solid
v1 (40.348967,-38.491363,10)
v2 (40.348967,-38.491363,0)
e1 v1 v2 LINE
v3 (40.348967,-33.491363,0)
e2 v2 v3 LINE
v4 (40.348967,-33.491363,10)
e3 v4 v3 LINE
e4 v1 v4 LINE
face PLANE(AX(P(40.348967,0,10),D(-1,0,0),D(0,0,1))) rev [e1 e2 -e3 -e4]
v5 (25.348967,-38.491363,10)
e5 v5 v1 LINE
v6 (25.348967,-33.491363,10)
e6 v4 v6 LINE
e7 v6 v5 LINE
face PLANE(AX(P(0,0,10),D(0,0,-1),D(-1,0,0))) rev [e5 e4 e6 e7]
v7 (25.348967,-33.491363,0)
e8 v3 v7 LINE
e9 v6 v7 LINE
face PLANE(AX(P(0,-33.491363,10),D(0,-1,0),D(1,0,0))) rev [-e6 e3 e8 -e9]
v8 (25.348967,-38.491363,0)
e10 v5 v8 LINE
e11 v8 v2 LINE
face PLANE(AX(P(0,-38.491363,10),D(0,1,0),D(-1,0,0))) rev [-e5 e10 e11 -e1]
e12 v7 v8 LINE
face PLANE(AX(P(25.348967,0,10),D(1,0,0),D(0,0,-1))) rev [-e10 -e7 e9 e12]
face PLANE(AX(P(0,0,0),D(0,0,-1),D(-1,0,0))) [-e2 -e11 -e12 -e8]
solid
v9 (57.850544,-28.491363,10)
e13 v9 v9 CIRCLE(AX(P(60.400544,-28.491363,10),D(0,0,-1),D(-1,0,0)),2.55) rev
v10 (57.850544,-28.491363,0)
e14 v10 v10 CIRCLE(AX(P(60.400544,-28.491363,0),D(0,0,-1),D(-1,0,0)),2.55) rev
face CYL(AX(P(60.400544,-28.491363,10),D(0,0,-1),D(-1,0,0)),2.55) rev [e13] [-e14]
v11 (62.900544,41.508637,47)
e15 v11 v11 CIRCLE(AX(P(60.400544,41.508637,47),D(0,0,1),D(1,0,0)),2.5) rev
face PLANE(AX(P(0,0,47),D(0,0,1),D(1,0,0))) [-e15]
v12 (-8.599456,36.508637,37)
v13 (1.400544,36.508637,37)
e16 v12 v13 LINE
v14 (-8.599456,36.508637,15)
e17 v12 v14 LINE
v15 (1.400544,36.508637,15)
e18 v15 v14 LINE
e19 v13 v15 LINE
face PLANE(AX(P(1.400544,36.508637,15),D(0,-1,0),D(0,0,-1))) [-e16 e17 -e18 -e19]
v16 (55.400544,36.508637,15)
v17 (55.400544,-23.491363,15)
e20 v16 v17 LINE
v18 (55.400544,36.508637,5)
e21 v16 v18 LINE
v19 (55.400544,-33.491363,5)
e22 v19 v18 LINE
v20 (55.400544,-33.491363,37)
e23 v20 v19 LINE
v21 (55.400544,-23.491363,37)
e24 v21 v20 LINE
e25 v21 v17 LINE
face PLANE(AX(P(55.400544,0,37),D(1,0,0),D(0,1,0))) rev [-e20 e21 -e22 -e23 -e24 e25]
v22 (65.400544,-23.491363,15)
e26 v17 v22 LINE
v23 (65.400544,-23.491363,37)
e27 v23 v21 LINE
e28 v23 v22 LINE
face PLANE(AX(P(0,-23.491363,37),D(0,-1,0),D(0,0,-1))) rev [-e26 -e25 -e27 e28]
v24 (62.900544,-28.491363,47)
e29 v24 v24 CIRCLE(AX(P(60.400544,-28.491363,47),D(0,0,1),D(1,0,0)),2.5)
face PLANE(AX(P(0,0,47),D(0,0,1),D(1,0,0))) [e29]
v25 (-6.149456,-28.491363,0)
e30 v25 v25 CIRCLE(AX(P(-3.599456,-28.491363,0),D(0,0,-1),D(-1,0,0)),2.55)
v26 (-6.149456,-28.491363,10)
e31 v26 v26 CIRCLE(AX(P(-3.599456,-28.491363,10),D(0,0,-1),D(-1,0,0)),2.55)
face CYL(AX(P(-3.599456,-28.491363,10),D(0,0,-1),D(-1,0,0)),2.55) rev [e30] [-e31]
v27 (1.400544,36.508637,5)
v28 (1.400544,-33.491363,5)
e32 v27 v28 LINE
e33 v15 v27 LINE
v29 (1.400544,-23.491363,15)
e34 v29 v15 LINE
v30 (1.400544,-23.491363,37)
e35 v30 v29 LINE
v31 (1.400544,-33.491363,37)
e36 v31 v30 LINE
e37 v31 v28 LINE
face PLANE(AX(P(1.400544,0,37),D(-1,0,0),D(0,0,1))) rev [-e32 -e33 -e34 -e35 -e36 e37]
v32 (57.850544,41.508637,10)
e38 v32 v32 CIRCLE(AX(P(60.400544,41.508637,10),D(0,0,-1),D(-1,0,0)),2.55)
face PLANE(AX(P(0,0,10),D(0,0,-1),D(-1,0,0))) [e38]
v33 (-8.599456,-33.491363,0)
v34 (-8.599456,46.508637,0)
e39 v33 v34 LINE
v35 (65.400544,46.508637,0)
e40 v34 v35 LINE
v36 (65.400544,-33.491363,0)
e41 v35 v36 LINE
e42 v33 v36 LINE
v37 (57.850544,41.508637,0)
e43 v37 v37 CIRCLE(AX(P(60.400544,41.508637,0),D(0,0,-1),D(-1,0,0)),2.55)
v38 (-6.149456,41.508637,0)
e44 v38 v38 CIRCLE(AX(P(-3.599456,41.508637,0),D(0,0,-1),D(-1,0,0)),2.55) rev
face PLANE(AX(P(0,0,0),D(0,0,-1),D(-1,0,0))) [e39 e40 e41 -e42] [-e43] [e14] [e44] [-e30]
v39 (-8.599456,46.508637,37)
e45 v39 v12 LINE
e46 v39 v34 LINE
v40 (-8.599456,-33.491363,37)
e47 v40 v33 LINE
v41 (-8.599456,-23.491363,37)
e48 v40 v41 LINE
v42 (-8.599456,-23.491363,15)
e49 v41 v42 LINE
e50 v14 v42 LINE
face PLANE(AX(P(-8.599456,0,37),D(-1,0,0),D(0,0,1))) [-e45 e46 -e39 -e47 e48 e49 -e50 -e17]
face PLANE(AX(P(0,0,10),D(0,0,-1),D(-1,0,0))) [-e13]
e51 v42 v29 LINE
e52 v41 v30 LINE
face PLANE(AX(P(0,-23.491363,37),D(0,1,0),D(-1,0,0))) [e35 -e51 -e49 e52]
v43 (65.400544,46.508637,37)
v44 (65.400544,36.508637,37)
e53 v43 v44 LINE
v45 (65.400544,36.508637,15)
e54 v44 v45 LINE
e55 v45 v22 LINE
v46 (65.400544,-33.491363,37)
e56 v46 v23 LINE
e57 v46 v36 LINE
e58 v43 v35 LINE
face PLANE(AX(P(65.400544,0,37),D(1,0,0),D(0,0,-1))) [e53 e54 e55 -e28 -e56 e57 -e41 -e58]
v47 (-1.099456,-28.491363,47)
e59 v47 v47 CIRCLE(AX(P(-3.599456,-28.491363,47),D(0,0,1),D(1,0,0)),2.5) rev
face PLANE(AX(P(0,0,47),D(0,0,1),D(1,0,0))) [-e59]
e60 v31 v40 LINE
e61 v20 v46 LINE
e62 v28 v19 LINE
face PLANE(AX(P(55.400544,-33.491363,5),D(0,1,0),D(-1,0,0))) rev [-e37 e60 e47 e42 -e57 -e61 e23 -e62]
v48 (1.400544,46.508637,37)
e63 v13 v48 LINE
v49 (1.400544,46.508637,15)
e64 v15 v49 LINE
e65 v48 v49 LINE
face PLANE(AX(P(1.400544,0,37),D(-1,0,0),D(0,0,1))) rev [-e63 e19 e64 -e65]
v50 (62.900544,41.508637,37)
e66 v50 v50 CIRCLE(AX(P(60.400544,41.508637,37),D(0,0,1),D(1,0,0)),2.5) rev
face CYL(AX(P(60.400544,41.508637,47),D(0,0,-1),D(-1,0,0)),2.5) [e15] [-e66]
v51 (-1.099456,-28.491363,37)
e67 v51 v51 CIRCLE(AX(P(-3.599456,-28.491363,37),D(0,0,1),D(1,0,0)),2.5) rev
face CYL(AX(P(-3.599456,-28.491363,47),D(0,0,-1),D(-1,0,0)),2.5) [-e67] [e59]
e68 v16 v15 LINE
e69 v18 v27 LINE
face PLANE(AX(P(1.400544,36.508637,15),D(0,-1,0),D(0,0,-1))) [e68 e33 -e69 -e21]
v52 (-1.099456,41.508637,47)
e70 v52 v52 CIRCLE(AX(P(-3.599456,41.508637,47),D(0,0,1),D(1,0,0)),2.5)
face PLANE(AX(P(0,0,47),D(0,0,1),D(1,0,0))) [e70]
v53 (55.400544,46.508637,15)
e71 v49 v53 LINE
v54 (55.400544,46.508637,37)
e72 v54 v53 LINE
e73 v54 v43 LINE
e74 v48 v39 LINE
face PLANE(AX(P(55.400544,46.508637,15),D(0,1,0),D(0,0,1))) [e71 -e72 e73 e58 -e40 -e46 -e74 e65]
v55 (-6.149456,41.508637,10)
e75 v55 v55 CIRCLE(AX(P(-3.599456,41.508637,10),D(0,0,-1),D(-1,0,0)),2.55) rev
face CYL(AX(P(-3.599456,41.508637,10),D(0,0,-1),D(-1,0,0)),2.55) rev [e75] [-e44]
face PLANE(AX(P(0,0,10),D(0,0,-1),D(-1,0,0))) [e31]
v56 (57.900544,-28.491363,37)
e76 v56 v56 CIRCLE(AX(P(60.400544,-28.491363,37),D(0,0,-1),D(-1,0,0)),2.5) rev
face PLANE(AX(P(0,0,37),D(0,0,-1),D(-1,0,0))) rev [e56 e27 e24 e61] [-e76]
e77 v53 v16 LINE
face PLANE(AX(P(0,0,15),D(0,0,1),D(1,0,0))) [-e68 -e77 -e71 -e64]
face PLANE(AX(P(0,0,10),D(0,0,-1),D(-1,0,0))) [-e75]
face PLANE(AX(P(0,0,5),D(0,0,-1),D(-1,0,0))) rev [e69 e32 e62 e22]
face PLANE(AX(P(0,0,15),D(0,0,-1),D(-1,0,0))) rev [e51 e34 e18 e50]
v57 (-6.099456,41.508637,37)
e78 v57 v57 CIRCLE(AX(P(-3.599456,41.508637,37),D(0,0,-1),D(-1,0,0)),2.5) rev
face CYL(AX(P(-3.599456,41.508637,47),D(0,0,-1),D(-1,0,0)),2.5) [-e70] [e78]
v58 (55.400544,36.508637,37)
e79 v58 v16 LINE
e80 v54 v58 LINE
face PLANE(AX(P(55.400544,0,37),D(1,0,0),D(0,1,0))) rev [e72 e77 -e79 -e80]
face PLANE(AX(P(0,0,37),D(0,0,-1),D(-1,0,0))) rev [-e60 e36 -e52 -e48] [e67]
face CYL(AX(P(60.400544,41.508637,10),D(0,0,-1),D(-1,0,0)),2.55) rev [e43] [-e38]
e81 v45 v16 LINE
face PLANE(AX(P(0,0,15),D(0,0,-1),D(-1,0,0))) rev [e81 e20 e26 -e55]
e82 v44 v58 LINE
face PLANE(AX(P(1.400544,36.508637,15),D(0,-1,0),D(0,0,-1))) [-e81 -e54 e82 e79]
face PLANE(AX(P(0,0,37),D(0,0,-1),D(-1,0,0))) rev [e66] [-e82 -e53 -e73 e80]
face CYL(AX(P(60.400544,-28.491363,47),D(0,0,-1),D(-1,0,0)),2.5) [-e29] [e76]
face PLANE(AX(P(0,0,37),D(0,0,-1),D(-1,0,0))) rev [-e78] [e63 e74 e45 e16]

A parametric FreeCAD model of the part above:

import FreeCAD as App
import Part
import Sketcher

V = App.Vector
Q = App.Units.Quantity


def add_polygon(sketch, points):
    """Adds a closed chain of lines whose ends are joined by coincident constraints."""
    first, n = sketch.GeometryCount, len(points)
    for a, b in zip(points, points[1:] + points[:1]):
        sketch.addGeometry(Part.LineSegment(App.Vector(*a, 0), App.Vector(*b, 0)), False)
    for i in range(n):
        sketch.addConstraint(Sketcher.Constraint("Coincident", first + i, 2, first + (i + 1) % n, 1))

doc = App.newDocument("Part")
body = doc.addObject("PartDesign::Body", "Body")

sketch1 = body.newObject("Sketcher::SketchObject", "Sketch")
sketch1.AttachmentSupport = (doc.getObject("XY_Plane"), [""])
sketch1.MapMode = "FlatFace"
add_polygon(sketch1, [(1.400544, 36.508637), (1.400544, -33.491363), (55.400544, -33.491363), (55.400544, 36.508637)])
sketch1.addConstraint([
    Sketcher.Constraint("Vertical", 0),
    Sketcher.Constraint("Horizontal", 1),
    Sketcher.Constraint("Vertical", 2),
    Sketcher.Constraint("Horizontal", 3),
    Sketcher.Constraint("DistanceX", 1, 1, 1, 2, Q("54 mm")),
    Sketcher.Constraint("DistanceY", 0, 2, 0, 1, Q("70 mm")),
    Sketcher.Constraint("DistanceX", -1, 1, 0, 2, Q("1.400544 mm")),
    Sketcher.Constraint("DistanceY", 0, 2, -1, 1, Q("33.491363 mm")),
])
pad1 = body.newObject("PartDesign::Pad", "Pad")
pad1.Profile = sketch1
pad1.Length = 5

sketch2 = body.newObject("Sketcher::SketchObject", "Sketch001")
sketch2.AttachmentSupport = (doc.getObject("XY_Plane"), [""])
sketch2.MapMode = "FlatFace"
add_polygon(sketch2, [(55.400544, 46.508637), (55.400544, 36.508637), (1.400544, 36.508637), (1.400544, 46.508637)])
sketch2.addConstraint([
    Sketcher.Constraint("Vertical", 0),
    Sketcher.Constraint("Horizontal", 1),
    Sketcher.Constraint("Vertical", 2),
    Sketcher.Constraint("Horizontal", 3),
    Sketcher.Constraint("DistanceX", 1, 2, 1, 1, Q("54 mm")),
    Sketcher.Constraint("DistanceY", 0, 2, 0, 1, Q("10 mm")),
    Sketcher.Constraint("DistanceX", -1, 1, 0, 2, Q("55.400544 mm")),
    Sketcher.Constraint("DistanceY", -1, 1, 0, 2, Q("36.508637 mm")),
])
pad2 = body.newObject("PartDesign::Pad", "Pad001")
pad2.Profile = sketch2
pad2.Length = 15

sketch3 = body.newObject("Sketcher::SketchObject", "Sketch002")
sketch3.AttachmentSupport = (doc.getObject("XY_Plane"), [""])
sketch3.MapMode = "FlatFace"
add_polygon(sketch3, [(65.400544, 46.508637), (65.400544, 36.508637), (55.400544, 36.508637), (55.400544, 46.508637)])
add_polygon(sketch3, [(65.400544, -23.491363), (65.400544, -33.491363), (55.400544, -33.491363), (55.400544, -23.491363)])
add_polygon(sketch3, [(1.400544, -23.491363), (1.400544, -33.491363), (-8.599456, -33.491363), (-8.599456, -23.491363)])
add_polygon(sketch3, [(1.400544, 46.508637), (1.400544, 36.508637), (-8.599456, 36.508637), (-8.599456, 46.508637)])
sketch3.addConstraint([
    Sketcher.Constraint("Vertical", 0),
    Sketcher.Constraint("Horizontal", 1),
    Sketcher.Constraint("Vertical", 2),
    Sketcher.Constraint("Horizontal", 3),
    Sketcher.Constraint("Vertical", 4),
    Sketcher.Constraint("Horizontal", 5),
    Sketcher.Constraint("Vertical", 6),
    Sketcher.Constraint("Horizontal", 7),
    Sketcher.Constraint("Vertical", 8),
    Sketcher.Constraint("Horizontal", 9),
    Sketcher.Constraint("Vertical", 10),
    Sketcher.Constraint("Horizontal", 11),
    Sketcher.Constraint("Vertical", 12),
    Sketcher.Constraint("Horizontal", 13),
    Sketcher.Constraint("Vertical", 14),
    Sketcher.Constraint("Horizontal", 15),
    Sketcher.Constraint("Horizontal", 5, 2, 8, 2),
    Sketcher.Constraint("Horizontal", 7, 2, 10, 2),
    Sketcher.Constraint("Horizontal", 1, 2, 12, 2),
    Sketcher.Constraint("Horizontal", 3, 2, 14, 2),
    Sketcher.Constraint("Vertical", 3, 2, 4, 2),
    Sketcher.Constraint("Vertical", 2, 2, 5, 2),
    Sketcher.Constraint("Vertical", 11, 2, 12, 2),
    Sketcher.Constraint("Vertical", 10, 2, 13, 2),
    Sketcher.Constraint("Equal", 7, 9),
    Sketcher.Constraint("Equal", 15, 0),
    Sketcher.Constraint("Equal", 2, 4),
    Sketcher.Constraint("DistanceX", 1, 2, 1, 1, Q("10 mm")),
    Sketcher.Constraint("DistanceY", 4, 2, 0, 2, Q("70 mm")),
    Sketcher.Constraint("DistanceX", 8, 2, 5, 2, Q("54 mm")),
    Sketcher.Constraint("DistanceX", -1, 1, 0, 2, Q("65.400544 mm")),
    Sketcher.Constraint("DistanceY", -1, 1, 0, 2, Q("36.508637 mm")),
])
pad3 = body.newObject("PartDesign::Pad", "Pad002")
pad3.Profile = sketch3
pad3.Length = 37

sketch4 = body.newObject("Sketcher::SketchObject", "Sketch003")
sketch4.AttachmentSupport = (doc.getObject("XY_Plane"), [""])
sketch4.MapMode = "FlatFace"
add_polygon(sketch4, [(65.400544, 36.508637), (65.400544, -23.491363), (55.400544, -23.491363), (55.400544, 36.508637)])
add_polygon(sketch4, [(1.400544, 36.508637), (1.400544, -23.491363), (-8.599456, -23.491363), (-8.599456, 36.508637)])
sketch4.addConstraint([
    Sketcher.Constraint("Vertical", 0),
    Sketcher.Constraint("Horizontal", 1),
    Sketcher.Constraint("Vertical", 2),
    Sketcher.Constraint("Horizontal", 3),
    Sketcher.Constraint("Vertical", 4),
    Sketcher.Constraint("Horizontal", 5),
    Sketcher.Constraint("Vertical", 6),
    Sketcher.Constraint("Horizontal", 7),
    Sketcher.Constraint("Horizontal", 1, 2, 4, 2),
    Sketcher.Constraint("Horizontal", 3, 2, 6, 2),
    Sketcher.Constraint("Equal", 3, 5),
    Sketcher.Constraint("DistanceX", 1, 2, 1, 1, Q("10 mm")),
    Sketcher.Constraint("DistanceY", 0, 2, 0, 1, Q("60 mm")),
    Sketcher.Constraint("DistanceX", 4, 2, 1, 2, Q("54 mm")),
    Sketcher.Constraint("DistanceX", -1, 1, 0, 2, Q("65.400544 mm")),
    Sketcher.Constraint("DistanceY", 0, 2, -1, 1, Q("23.491363 mm")),
])
pad4 = body.newObject("PartDesign::Pad", "Pad003")
pad4.Profile = sketch4
pad4.Length = 15

sketch5 = body.newObject("Sketcher::SketchObject", "Sketch004")
sketch5.AttachmentSupport = (doc.getObject("XY_Plane"), [""])
sketch5.MapMode = "FlatFace"
sketch5.AttachmentOffset = App.Placement(V(0, 0, 37), App.Rotation())
sketch5.addGeometry([
    Part.Circle(V(-3.599456, 41.508637, 0), V(0, 0, 1), 2.5),
    Part.Circle(V(60.400544, 41.508637, 0), V(0, 0, 1), 2.5),
    Part.Circle(V(60.400544, -28.491363, 0), V(0, 0, 1), 2.5),
    Part.Circle(V(-3.599456, -28.491363, 0), V(0, 0, 1), 2.5),
], False)
sketch5.addConstraint([
    Sketcher.Constraint("Equal", 0, 1),
    Sketcher.Constraint("Equal", 1, 2),
    Sketcher.Constraint("Equal", 2, 3),
    Sketcher.Constraint("Horizontal", 0, 3, 1, 3),
    Sketcher.Constraint("Horizontal", 2, 3, 3, 3),
    Sketcher.Constraint("Vertical", 1, 3, 2, 3),
    Sketcher.Constraint("Vertical", 0, 3, 3, 3),
    Sketcher.Constraint("Diameter", 0, Q("5 mm")),
    Sketcher.Constraint("DistanceX", 0, 3, 1, 3, Q("64 mm")),
    Sketcher.Constraint("DistanceY", 2, 3, 1, 3, Q("70 mm")),
    Sketcher.Constraint("DistanceX", 0, 3, -1, 1, Q("3.599456 mm")),
    Sketcher.Constraint("DistanceY", -1, 1, 0, 3, Q("41.508637 mm")),
])
pad5 = body.newObject("PartDesign::Pad", "Pad004")
pad5.Profile = sketch5
pad5.Length = 10

sketch6 = body.newObject("Sketcher::SketchObject", "Sketch005")
sketch6.AttachmentSupport = (doc.getObject("XY_Plane"), [""])
sketch6.MapMode = "FlatFace"
sketch6.addGeometry([
    Part.Circle(V(60.400544, 41.508637, 0), V(0, 0, 1), 2.55),
    Part.Circle(V(-3.599456, 41.508637, 0), V(0, 0, 1), 2.55),
    Part.Circle(V(-3.599456, -28.491363, 0), V(0, 0, 1), 2.55),
    Part.Circle(V(60.400544, -28.491363, 0), V(0, 0, 1), 2.55),
], False)
sketch6.addConstraint([
    Sketcher.Constraint("Equal", 0, 1),
    Sketcher.Constraint("Equal", 1, 2),
    Sketcher.Constraint("Equal", 2, 3),
    Sketcher.Constraint("Horizontal", 0, 3, 1, 3),
    Sketcher.Constraint("Horizontal", 2, 3, 3, 3),
    Sketcher.Constraint("Vertical", 1, 3, 2, 3),
    Sketcher.Constraint("Vertical", 0, 3, 3, 3),
    Sketcher.Constraint("Diameter", 0, Q("5.1 mm")),
    Sketcher.Constraint("DistanceX", 1, 3, 0, 3, Q("64 mm")),
    Sketcher.Constraint("DistanceY", 2, 3, 1, 3, Q("70 mm")),
    Sketcher.Constraint("DistanceX", -1, 1, 0, 3, Q("60.400544 mm")),
    Sketcher.Constraint("DistanceY", -1, 1, 0, 3, Q("41.508637 mm")),
])
pocket1 = body.newObject("PartDesign::Pocket", "Pocket")
pocket1.Profile = sketch6
pocket1.Length = 10
pocket1.Reversed = True
body2 = doc.addObject("PartDesign::Body", "Body001")

sketch7 = body2.newObject("Sketcher::SketchObject", "Sketch006")
sketch7.AttachmentSupport = (doc.getObject("XY_Plane001"), [""])
sketch7.MapMode = "FlatFace"
add_polygon(sketch7, [(40.348967, -33.491363), (40.348967, -38.491363), (25.348967, -38.491363), (25.348967, -33.491363)])
sketch7.addConstraint([
    Sketcher.Constraint("Vertical", 0),
    Sketcher.Constraint("Horizontal", 1),
    Sketcher.Constraint("Vertical", 2),
    Sketcher.Constraint("Horizontal", 3),
    Sketcher.Constraint("DistanceX", 1, 2, 1, 1, Q("15 mm")),
    Sketcher.Constraint("DistanceY", 0, 2, 0, 1, Q("5 mm")),
    Sketcher.Constraint("DistanceX", -1, 1, 0, 2, Q("40.348967 mm")),
    Sketcher.Constraint("DistanceY", 0, 2, -1, 1, Q("38.491363 mm")),
])
pad6 = body2.newObject("PartDesign::Pad", "Pad005")
pad6.Profile = sketch7
pad6.Length = 10

doc.recompute()
